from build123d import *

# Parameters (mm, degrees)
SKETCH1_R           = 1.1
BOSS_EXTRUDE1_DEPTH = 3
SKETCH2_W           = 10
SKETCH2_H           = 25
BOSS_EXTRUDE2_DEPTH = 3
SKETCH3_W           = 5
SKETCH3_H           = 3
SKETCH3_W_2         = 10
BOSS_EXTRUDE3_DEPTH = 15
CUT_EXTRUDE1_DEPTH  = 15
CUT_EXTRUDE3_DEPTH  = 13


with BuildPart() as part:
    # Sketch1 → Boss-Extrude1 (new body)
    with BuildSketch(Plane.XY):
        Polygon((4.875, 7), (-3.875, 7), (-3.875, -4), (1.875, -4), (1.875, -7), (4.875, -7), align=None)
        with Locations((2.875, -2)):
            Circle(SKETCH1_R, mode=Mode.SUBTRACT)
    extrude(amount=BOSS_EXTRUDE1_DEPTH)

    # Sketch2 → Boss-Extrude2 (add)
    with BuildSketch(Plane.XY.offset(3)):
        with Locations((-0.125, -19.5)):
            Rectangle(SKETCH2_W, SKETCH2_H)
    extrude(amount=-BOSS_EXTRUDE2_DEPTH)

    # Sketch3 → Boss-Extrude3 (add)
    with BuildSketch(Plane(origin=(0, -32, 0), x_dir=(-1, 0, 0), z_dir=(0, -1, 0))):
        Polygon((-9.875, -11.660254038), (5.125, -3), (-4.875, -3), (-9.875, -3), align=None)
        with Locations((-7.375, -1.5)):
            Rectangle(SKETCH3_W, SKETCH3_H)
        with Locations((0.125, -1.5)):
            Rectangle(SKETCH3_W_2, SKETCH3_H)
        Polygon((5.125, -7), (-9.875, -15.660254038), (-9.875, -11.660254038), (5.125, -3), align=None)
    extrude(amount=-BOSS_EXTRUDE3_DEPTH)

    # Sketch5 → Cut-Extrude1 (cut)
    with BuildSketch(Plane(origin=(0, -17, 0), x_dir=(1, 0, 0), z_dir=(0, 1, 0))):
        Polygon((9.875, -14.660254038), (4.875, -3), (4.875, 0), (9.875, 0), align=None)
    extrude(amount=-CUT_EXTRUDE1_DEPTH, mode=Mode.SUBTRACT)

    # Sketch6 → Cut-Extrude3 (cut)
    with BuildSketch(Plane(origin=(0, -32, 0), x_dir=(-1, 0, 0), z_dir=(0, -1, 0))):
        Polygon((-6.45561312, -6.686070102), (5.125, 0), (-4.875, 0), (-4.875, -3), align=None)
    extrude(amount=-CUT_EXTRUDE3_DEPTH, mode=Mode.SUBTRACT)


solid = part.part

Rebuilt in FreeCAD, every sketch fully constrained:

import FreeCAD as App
import Part
import Sketcher

V = App.Vector
Q = App.Units.Quantity

doc = App.newDocument("Part")
body = doc.addObject("PartDesign::Body", "Body")

# Sketch on XY plane
sketch1 = body.newObject("Sketcher::SketchObject", "Sketch")
sketch1.AttachmentSupport = (doc.getObject("XY_Plane"), [""])
sketch1.MapMode = "FlatFace"
sketch1.addGeometry([
    Part.LineSegment(V(4.875, 7, 0), V(-3.875, 7, 0)),  # 0
    Part.LineSegment(V(-3.875, 7, 0), V(-3.875, -4, 0)),  # 1
    Part.LineSegment(V(-3.875, -4, 0), V(1.875, -4, 0)),  # 2
    Part.LineSegment(V(1.875, -4, 0), V(1.875, -7, 0)),  # 3
    Part.LineSegment(V(1.875, -7, 0), V(4.875, -7, 0)),  # 4
    Part.LineSegment(V(4.875, -7, 0), V(4.875, 7, 0)),  # 5
    Part.Circle(V(2.875, -2, 0), V(0, 0, 1), 1.1),  # 6
], False)
sketch1.addConstraint([
    Sketcher.Constraint("Coincident", 0, 2, 1, 1),
    Sketcher.Constraint("Coincident", 1, 2, 2, 1),
    Sketcher.Constraint("Coincident", 2, 2, 3, 1),
    Sketcher.Constraint("Coincident", 3, 2, 4, 1),
    Sketcher.Constraint("Coincident", 4, 2, 5, 1),
    Sketcher.Constraint("Coincident", 5, 2, 0, 1),
    Sketcher.Constraint("Horizontal", 0),
    Sketcher.Constraint("Vertical", 1),
    Sketcher.Constraint("Horizontal", 2),
    Sketcher.Constraint("Vertical", 3),
    Sketcher.Constraint("Horizontal", 4),
    Sketcher.Constraint("Vertical", 5),
    Sketcher.Constraint("Equal", 4, 3),
    Sketcher.Constraint("Diameter", 6, 2.2),
    Sketcher.Constraint("DistanceX", 4, 1, 4, 2, 3.0),
    Sketcher.Constraint("DistanceY", 1, 2, 1, 1, 11.0),
    Sketcher.Constraint("DistanceY", 6, 3, -1, 1, 2.0),
    Sketcher.Constraint("DistanceY", -1, 1, 0, 2, 7.0),
    Sketcher.Constraint("DistanceX", 2, 2, 6, 3, 1.0),
    Sketcher.Constraint("DistanceX", 0, 2, 0, 1, 8.75),
    Sketcher.Constraint("DistanceX", -1, 1, 6, 3, 2.875),
])
pad1 = body.newObject("PartDesign::Pad", "Pad")
pad1.Profile = sketch1
pad1.Length = 3

# Sketch on XY plane
sketch2 = body.newObject("Sketcher::SketchObject", "Sketch001")
sketch2.AttachmentSupport = (doc.getObject("XY_Plane"), [""])
sketch2.MapMode = "FlatFace"
sketch2.AttachmentOffset = App.Placement(V(0, 0, 3), App.Rotation())
sketch2.addGeometry([
    Part.LineSegment(V(-5.125, -7, 0), V(-5.125, -32, 0)),
    Part.LineSegment(V(-5.125, -32, 0), V(4.875, -32, 0)),
    Part.LineSegment(V(4.875, -32, 0), V(4.875, -7, 0)),
    Part.LineSegment(V(4.875, -7, 0), V(-5.125, -7, 0)),
], False)
sketch2.addConstraint([
    Sketcher.Constraint("Coincident", 0, 2, 1, 1),
    Sketcher.Constraint("Coincident", 1, 2, 2, 1),
    Sketcher.Constraint("Coincident", 2, 2, 3, 1),
    Sketcher.Constraint("Coincident", 3, 2, 0, 1),
    Sketcher.Constraint("Vertical", 0),
    Sketcher.Constraint("Horizontal", 1),
    Sketcher.Constraint("Vertical", 2),
    Sketcher.Constraint("Horizontal", 3),
    Sketcher.Constraint("DistanceX", 1, 1, 1, 2, 10.0),
    Sketcher.Constraint("DistanceY", 0, 2, 0, 1, 25.0),
    Sketcher.Constraint("DistanceY", 0, 2, -1, 1, 32.0),
    Sketcher.Constraint("DistanceX", 0, 2, -1, 1, 5.125),
])
pad2 = body.newObject("PartDesign::Pad", "Pad001")
pad2.Profile = sketch2
pad2.Length = 3
pad2.Reversed = True

# Sketch on XZ plane
sketch3 = body.newObject("Sketcher::SketchObject", "Sketch002")
sketch3.AttachmentSupport = (doc.getObject("XZ_Plane"), [""])
sketch3.MapMode = "FlatFace"
sketch3.AttachmentOffset = App.Placement(V(0, 0, 32), App.Rotation())
sketch3.addGeometry([
    Part.LineSegment(V(-5.125, 0, 0), V(9.875, 0, 0)),
    Part.LineSegment(V(9.875, 0, 0), V(9.875, 15.660254, 0)),
    Part.LineSegment(V(9.875, 15.660254, 0), V(-5.125, 7, 0)),
    Part.LineSegment(V(-5.125, 7, 0), V(-5.125, 0, 0)),
], False)
sketch3.addConstraint([
    Sketcher.Constraint("Coincident", 0, 2, 1, 1),
    Sketcher.Constraint("Coincident", 1, 2, 2, 1),
    Sketcher.Constraint("Coincident", 2, 2, 3, 1),
    Sketcher.Constraint("Coincident", 3, 2, 0, 1),
    Sketcher.Constraint("Horizontal", 0),
    Sketcher.Constraint("Vertical", 1),
    Sketcher.Constraint("Vertical", 3),
    Sketcher.Constraint("PointOnObject", 0, 2, -1),
    Sketcher.Constraint("DistanceX", 0, 1, 0, 2, 15.0),
    Sketcher.Constraint("DistanceY", 3, 2, 3, 1, 7.0),
    Sketcher.Constraint("Angle", 2, Q("-150 deg")),
    Sketcher.Constraint("DistanceX", -1, 1, 0, 2, 9.875),
])
pad3 = body.newObject("PartDesign::Pad", "Pad002")
pad3.Profile = sketch3
pad3.Length = 15
pad3.Reversed = True

# Sketch on XZ plane
sketch4 = body.newObject("Sketcher::SketchObject", "Sketch003")
sketch4.AttachmentSupport = (doc.getObject("XZ_Plane"), [""])
sketch4.MapMode = "FlatFace"
sketch4.AttachmentOffset = App.Placement(V(0, 0, 17), App.Rotation())
sketch4.addGeometry([
    Part.LineSegment(V(4.875, 3, 0), V(9.875, 14.660254, 0)),
    Part.LineSegment(V(9.875, 14.660254, 0), V(9.875, 0, 0)),
    Part.LineSegment(V(9.875, 0, 0), V(4.875, 0, 0)),
    Part.LineSegment(V(4.875, 0, 0), V(4.875, 3, 0)),
], False)
sketch4.addConstraint([
    Sketcher.Constraint("Coincident", 0, 2, 1, 1),
    Sketcher.Constraint("Coincident", 1, 2, 2, 1),
    Sketcher.Constraint("Coincident", 2, 2, 3, 1),
    Sketcher.Constraint("Coincident", 3, 2, 0, 1),
    Sketcher.Constraint("Vertical", 1),
    Sketcher.Constraint("Horizontal", 2),
    Sketcher.Constraint("Vertical", 3),
    Sketcher.Constraint("PointOnObject", 1, 2, -1),
    Sketcher.Constraint("DistanceX", 2, 2, 2, 1, 5.0),
    Sketcher.Constraint("DistanceY", 3, 1, 3, 2, 3.0),
    Sketcher.Constraint("Angle", 0, Q("66.790002 deg")),
    Sketcher.Constraint("DistanceX", -1, 1, 0, 2, 9.875),
])
pocket1 = body.newObject("PartDesign::Pocket", "Pocket")
pocket1.Profile = sketch4
pocket1.Length = 15
pocket1.Reversed = True

# Sketch on XZ plane
sketch5 = body.newObject("Sketcher::SketchObject", "Sketch004")
sketch5.AttachmentSupport = (doc.getObject("XZ_Plane"), [""])
sketch5.MapMode = "FlatFace"
sketch5.AttachmentOffset = App.Placement(V(0, 0, 32), App.Rotation())
sketch5.addGeometry([
    Part.LineSegment(V(6.455613, 6.68607, 0), V(-5.125, 0, 0)),
    Part.LineSegment(V(-5.125, 0, 0), V(4.875, 0, 0)),
    Part.LineSegment(V(4.875, 0, 0), V(4.875, 3, 0)),
    Part.LineSegment(V(4.875, 3, 0), V(6.455613, 6.68607, 0)),
], False)
sketch5.addConstraint([
    Sketcher.Constraint("Coincident", 0, 2, 1, 1),
    Sketcher.Constraint("Coincident", 1, 2, 2, 1),
    Sketcher.Constraint("Coincident", 2, 2, 3, 1),
    Sketcher.Constraint("Coincident", 3, 2, 0, 1),
    Sketcher.Constraint("Horizontal", 1),
    Sketcher.Constraint("Vertical", 2),
    Sketcher.Constraint("PointOnObject", 0, 2, -1),
    Sketcher.Constraint("DistanceX", 1, 1, 1, 2, 10.0),
    Sketcher.Constraint("DistanceY", 2, 1, 2, 2, 3.0),
    Sketcher.Constraint("Angle", 0, Q("-150 deg")),
    Sketcher.Constraint("Angle", 3, Q("66.790002 deg")),
    Sketcher.Constraint("DistanceX", 0, 2, -1, 1, 5.125),
])
pocket2 = body.newObject("PartDesign::Pocket", "Pocket001")
pocket2.Profile = sketch5
pocket2.Length = 13

doc.recompute()
